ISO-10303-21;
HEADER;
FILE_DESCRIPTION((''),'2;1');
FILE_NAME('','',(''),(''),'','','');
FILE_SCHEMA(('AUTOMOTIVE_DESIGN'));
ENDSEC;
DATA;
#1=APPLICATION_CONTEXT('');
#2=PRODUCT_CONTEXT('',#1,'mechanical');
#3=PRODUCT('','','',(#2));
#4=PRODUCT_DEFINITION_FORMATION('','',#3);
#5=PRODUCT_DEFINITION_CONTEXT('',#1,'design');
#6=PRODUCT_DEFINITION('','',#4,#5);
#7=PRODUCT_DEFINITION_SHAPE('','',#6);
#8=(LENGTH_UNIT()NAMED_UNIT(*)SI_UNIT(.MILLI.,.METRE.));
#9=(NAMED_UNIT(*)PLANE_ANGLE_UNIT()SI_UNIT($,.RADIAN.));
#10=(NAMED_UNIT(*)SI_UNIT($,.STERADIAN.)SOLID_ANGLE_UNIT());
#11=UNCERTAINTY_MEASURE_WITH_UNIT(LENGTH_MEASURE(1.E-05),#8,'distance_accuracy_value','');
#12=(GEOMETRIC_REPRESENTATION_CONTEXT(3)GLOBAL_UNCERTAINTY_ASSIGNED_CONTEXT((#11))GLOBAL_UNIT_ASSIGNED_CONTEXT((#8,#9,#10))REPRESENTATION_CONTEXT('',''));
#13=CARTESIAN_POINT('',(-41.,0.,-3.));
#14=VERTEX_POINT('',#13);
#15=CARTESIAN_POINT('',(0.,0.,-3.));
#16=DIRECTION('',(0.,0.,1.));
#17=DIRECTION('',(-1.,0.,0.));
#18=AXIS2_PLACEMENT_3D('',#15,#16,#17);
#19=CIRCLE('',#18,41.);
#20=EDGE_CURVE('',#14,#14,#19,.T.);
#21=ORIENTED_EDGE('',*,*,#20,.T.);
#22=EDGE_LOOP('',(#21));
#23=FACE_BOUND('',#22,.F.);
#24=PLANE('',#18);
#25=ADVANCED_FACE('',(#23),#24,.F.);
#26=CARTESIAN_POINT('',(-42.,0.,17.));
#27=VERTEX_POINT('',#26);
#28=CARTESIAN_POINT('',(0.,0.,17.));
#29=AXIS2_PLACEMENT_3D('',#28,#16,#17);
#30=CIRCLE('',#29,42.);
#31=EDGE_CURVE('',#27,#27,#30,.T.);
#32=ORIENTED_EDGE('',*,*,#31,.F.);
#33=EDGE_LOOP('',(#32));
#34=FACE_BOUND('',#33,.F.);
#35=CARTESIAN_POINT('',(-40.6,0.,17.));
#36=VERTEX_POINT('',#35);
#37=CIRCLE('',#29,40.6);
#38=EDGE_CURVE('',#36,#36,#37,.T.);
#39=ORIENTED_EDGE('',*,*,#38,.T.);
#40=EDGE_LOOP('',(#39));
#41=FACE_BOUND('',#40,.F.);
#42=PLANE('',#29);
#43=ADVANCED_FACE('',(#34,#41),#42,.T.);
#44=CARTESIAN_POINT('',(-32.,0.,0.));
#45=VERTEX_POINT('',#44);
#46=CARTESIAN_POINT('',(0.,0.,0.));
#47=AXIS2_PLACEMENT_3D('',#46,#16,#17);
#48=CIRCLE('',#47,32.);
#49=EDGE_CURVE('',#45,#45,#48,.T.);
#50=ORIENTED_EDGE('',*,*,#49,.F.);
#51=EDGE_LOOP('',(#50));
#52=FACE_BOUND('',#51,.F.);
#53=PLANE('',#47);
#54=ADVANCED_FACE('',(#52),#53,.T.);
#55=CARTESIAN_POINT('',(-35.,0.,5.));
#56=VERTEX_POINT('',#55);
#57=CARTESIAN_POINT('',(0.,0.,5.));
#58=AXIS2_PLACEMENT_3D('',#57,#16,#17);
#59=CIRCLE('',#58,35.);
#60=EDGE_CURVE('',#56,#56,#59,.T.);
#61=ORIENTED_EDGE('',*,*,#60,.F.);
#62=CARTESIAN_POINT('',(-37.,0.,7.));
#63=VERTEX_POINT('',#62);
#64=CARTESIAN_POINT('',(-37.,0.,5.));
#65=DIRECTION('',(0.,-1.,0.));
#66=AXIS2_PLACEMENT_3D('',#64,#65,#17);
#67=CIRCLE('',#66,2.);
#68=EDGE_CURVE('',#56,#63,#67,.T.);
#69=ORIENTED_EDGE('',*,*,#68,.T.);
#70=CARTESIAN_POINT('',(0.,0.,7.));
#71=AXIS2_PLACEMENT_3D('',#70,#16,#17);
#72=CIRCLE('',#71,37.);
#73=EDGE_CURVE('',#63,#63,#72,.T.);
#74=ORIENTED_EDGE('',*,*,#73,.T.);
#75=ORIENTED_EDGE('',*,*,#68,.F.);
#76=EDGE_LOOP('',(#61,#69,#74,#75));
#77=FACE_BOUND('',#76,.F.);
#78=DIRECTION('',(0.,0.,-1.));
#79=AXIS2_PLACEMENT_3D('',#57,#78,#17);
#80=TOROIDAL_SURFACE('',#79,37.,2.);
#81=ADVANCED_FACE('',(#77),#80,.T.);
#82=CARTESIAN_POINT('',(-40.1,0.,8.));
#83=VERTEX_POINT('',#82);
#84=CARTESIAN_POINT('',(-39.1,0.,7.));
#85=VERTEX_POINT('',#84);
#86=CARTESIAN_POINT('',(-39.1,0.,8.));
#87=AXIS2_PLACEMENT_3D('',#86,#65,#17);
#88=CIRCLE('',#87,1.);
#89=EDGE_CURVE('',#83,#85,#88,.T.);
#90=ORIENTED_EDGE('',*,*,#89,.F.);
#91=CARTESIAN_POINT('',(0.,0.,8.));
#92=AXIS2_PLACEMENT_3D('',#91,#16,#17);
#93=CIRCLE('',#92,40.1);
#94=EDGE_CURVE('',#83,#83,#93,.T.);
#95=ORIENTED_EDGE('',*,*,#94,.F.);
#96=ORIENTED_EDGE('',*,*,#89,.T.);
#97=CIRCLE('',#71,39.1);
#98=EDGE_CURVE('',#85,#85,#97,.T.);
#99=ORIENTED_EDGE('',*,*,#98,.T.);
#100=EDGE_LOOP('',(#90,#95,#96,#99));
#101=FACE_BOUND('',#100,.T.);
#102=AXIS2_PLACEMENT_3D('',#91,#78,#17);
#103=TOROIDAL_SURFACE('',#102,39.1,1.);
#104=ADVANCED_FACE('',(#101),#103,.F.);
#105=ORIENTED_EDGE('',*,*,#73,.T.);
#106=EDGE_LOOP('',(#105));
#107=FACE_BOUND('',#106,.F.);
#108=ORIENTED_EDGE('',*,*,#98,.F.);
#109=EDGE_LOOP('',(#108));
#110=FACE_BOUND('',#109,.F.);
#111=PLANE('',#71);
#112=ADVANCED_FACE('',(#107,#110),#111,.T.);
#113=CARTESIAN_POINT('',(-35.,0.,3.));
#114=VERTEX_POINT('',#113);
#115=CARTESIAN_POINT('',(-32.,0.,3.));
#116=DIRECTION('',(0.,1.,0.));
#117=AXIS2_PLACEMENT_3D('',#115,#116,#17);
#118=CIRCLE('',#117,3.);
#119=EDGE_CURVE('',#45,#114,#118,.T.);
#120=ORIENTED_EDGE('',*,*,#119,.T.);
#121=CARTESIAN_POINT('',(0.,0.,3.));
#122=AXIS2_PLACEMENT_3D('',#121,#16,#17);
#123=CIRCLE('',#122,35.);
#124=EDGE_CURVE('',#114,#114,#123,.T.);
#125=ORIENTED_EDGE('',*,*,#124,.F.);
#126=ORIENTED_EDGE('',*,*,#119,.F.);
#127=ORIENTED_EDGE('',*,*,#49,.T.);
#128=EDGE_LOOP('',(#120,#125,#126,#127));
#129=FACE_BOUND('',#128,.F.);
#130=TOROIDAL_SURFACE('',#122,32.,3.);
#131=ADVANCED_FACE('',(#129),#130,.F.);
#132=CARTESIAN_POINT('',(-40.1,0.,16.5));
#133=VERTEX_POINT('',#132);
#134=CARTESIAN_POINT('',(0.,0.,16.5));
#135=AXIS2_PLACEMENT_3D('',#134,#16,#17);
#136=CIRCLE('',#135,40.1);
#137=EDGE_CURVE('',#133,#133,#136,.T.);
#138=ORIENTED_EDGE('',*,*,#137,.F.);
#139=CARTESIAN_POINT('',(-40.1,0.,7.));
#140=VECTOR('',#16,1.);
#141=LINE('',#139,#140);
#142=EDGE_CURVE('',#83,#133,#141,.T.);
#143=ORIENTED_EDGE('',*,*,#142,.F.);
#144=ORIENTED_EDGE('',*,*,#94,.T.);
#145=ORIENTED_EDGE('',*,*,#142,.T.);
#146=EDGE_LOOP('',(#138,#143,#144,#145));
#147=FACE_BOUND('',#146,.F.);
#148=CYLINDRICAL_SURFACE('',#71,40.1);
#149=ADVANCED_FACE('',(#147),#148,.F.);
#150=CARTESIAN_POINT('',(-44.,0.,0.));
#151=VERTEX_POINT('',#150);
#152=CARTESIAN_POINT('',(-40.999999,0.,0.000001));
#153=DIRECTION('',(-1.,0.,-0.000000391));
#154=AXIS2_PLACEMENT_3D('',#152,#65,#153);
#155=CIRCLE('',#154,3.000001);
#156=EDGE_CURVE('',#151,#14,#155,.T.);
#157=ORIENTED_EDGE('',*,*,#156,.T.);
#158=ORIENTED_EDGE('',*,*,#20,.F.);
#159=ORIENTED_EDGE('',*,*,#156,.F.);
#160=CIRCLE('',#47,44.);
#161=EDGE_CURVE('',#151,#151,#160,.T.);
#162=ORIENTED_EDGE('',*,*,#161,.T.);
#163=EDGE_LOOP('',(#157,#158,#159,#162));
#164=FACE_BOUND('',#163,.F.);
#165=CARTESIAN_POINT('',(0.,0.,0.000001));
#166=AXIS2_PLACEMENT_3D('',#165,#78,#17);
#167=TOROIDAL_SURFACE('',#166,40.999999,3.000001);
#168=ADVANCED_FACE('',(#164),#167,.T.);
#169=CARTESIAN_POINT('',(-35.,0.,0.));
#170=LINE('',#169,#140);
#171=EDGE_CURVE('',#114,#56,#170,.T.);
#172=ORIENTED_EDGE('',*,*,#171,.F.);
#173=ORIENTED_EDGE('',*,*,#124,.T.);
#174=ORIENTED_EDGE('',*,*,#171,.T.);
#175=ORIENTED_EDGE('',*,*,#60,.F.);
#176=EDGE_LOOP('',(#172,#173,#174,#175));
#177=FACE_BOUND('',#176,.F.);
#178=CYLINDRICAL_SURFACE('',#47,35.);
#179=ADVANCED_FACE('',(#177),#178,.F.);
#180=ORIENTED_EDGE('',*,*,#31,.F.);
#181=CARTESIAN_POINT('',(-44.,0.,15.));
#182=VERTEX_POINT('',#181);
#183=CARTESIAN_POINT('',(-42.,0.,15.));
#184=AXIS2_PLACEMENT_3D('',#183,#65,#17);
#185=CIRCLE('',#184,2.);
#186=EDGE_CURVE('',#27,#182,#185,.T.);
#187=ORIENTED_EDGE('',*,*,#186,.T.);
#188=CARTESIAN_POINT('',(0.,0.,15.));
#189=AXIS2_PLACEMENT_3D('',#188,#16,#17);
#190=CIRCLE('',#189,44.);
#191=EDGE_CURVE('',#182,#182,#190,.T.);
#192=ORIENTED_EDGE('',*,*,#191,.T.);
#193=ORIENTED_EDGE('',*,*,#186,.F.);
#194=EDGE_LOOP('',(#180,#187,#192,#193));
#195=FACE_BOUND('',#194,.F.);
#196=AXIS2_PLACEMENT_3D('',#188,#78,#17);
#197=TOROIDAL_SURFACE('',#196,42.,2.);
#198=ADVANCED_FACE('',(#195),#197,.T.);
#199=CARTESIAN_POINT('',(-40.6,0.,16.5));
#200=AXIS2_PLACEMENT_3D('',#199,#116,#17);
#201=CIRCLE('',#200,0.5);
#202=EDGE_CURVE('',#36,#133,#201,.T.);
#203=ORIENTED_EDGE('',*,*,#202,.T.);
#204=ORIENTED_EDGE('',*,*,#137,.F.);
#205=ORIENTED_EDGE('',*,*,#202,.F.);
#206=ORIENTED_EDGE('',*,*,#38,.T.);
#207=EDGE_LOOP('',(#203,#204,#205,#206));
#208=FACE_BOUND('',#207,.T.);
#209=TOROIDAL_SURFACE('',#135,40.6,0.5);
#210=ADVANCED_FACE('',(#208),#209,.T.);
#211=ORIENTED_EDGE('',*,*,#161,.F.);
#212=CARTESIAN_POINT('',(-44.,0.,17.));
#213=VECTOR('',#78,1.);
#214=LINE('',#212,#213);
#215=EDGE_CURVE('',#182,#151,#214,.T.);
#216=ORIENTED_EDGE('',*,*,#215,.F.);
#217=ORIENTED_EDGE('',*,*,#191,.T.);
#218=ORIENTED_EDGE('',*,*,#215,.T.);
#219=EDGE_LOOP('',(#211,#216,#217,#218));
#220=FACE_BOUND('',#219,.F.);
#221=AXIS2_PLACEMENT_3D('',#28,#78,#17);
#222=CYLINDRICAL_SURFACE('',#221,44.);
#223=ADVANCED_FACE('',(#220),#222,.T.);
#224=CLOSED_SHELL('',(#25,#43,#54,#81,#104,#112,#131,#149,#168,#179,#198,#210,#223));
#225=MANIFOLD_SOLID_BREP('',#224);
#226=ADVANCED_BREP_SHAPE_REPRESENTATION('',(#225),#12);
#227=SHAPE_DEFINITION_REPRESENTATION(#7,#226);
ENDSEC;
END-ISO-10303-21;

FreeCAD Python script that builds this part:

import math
import FreeCAD as App
import Part
import Sketcher
from FreeCAD import Vector
Q = App.Units.Quantity


def edges_at(feature, points):
    """Names of the edges that pass closest to the given points."""
    edges = feature.Shape.Edges
    near = lambda p: min(range(len(edges)), key=lambda i: edges[i].distToShape(Part.Vertex(*p))[0])
    return sorted({f"Edge{near(p) + 1}" for p in points})

doc = App.newDocument("Part")
params = doc.addObject("Spreadsheet::Sheet", "Params")
for row, (alias, value) in enumerate([
    ("sketch1_radius", "3.000001 mm"),
    ("sketch1_width", "35 mm"),
    ("sketch1_width2", "41 mm"),
    ("sketch1_height", "7 mm"),
    ("sketch1_height2", "10 mm"),
    ("revolution_angle", "360 deg"),
    ("fillet_radius", "3 mm"),
    ("fillet2_radius", "2 mm"),
    ("fillet3_radius", "2 mm"),
    ("fillet4_radius", "0.5 mm"),
    ("fillet5_radius", "1 mm"),
], start=1):
    params.set(f"A{row}", alias)
    params.set(f"B{row}", "=" + value)
    params.setAlias(f"B{row}", alias)

body = doc.addObject("PartDesign::Body", "Body")

# Sketch on XZ plane
sketch1 = body.newObject("Sketcher::SketchObject", "Sketch")
sketch1.AttachmentSupport = (doc.getObject("XZ_Plane"), [""])
sketch1.MapMode = "FlatFace"
sketch1.addGeometry(Part.LineSegment(Vector(0, -3, 0), Vector(0, 0, 0)), False)
sketch1.addGeometry(Part.LineSegment(Vector(0, 0, 0), Vector(-35, 0, 0)), False)
sketch1.addGeometry(Part.LineSegment(Vector(-35, 0, 0), Vector(-35, 7, 0)), False)
sketch1.addGeometry(Part.LineSegment(Vector(-35, 7, 0), Vector(-40.1, 7, 0)), False)
sketch1.addGeometry(Part.LineSegment(Vector(-40.1, 7, 0), Vector(-40.1, 17, 0)), False)
sketch1.addGeometry(Part.LineSegment(Vector(-40.1, 17, 0), Vector(-44, 17, 0)), False)
sketch1.addGeometry(Part.LineSegment(Vector(-44, 17, 0), Vector(-44, 0, 0)), False)
sketch1.addGeometry(Part.ArcOfCircle(Part.Circle(Vector(-41, 0, 0), Vector(0, 0, 1), 3), math.radians(-180), math.radians(-90)), False)
sketch1.addGeometry(Part.LineSegment(Vector(-41, -3, 0), Vector(0, -3, 0)), False)
sketch1.addConstraint(Sketcher.Constraint("Coincident", 0, 2, 1, 1))
sketch1.addConstraint(Sketcher.Constraint("Coincident", 1, 2, 2, 1))
sketch1.addConstraint(Sketcher.Constraint("Coincident", 2, 2, 3, 1))
sketch1.addConstraint(Sketcher.Constraint("Coincident", 3, 2, 4, 1))
sketch1.addConstraint(Sketcher.Constraint("Coincident", 4, 2, 5, 1))
sketch1.addConstraint(Sketcher.Constraint("Coincident", 5, 2, 6, 1))
sketch1.addConstraint(Sketcher.Constraint("Tangent", 6, 2, 7, 1))
sketch1.addConstraint(Sketcher.Constraint("Tangent", 7, 2, 8, 1))
sketch1.addConstraint(Sketcher.Constraint("Coincident", 8, 2, 0, 1))
sketch1.addConstraint(Sketcher.Constraint("Vertical", 0))
sketch1.addConstraint(Sketcher.Constraint("Horizontal", 1))
sketch1.addConstraint(Sketcher.Constraint("Vertical", 2))
sketch1.addConstraint(Sketcher.Constraint("Horizontal", 3))
sketch1.addConstraint(Sketcher.Constraint("Vertical", 4))
sketch1.addConstraint(Sketcher.Constraint("Horizontal", 5))
sketch1.addConstraint(Sketcher.Constraint("Vertical", 6))
sketch1.addConstraint(Sketcher.Constraint("Horizontal", 8))
sketch1.addConstraint(Sketcher.Constraint("Coincident", 0, 2, -1, 1))
sketch1.addConstraint(Sketcher.Constraint("PointOnObject", 7, 3, -1))
sketch1.addConstraint(Sketcher.Constraint("Radius", 7, Q("3.000001 mm")))
sketch1.addConstraint(Sketcher.Constraint("DistanceX", 1, 2, 1, 1, Q("35 mm")))
sketch1.addConstraint(Sketcher.Constraint("DistanceX", 8, 1, 8, 2, Q("41 mm")))
sketch1.addConstraint(Sketcher.Constraint("DistanceY", 2, 1, 2, 2, Q("7 mm")))
sketch1.addConstraint(Sketcher.Constraint("DistanceY", 4, 1, 4, 2, Q("10 mm")))
sketch1.addConstraint(Sketcher.Constraint("DistanceX", 3, 2, 3, 1, Q("5.1 mm")))
sketch1.setExpression("Constraints[19]", "Params.sketch1_radius")
sketch1.setExpression("Constraints[20]", "Params.sketch1_width")
sketch1.setExpression("Constraints[21]", "Params.sketch1_width2")
sketch1.setExpression("Constraints[22]", "Params.sketch1_height")
sketch1.setExpression("Constraints[23]", "Params.sketch1_height2")
revolution = body.newObject("PartDesign::Revolution", "Revolution")
revolution.Profile = sketch1
revolution.ReferenceAxis = (sketch1, ["V_Axis"])
revolution.setExpression("Angle", "Params.revolution_angle")
doc.recompute()

fillet = body.newObject("PartDesign::Fillet", "Fillet")
fillet.Base = (revolution, edges_at(revolution, [(35, 0, 0)]))
fillet.setExpression("Radius", "Params.fillet_radius")
doc.recompute()

fillet2 = body.newObject("PartDesign::Fillet", "Fillet001")
fillet2.Base = (fillet, edges_at(fillet, [(35, 0, 7)]))
fillet2.setExpression("Radius", "Params.fillet2_radius")
doc.recompute()

fillet3 = body.newObject("PartDesign::Fillet", "Fillet002")
fillet3.Base = (fillet2, edges_at(fillet2, [(44, 0, 17)]))
fillet3.setExpression("Radius", "Params.fillet3_radius")
doc.recompute()

fillet4 = body.newObject("PartDesign::Fillet", "Fillet003")
fillet4.Base = (fillet3, edges_at(fillet3, [(40.1, 0, 17)]))
fillet4.setExpression("Radius", "Params.fillet4_radius")
doc.recompute()

fillet5 = body.newObject("PartDesign::Fillet", "Fillet004")
fillet5.Base = (fillet4, edges_at(fillet4, [(40.1, 0, 7)]))
fillet5.setExpression("Radius", "Params.fillet5_radius")

doc.recompute()
